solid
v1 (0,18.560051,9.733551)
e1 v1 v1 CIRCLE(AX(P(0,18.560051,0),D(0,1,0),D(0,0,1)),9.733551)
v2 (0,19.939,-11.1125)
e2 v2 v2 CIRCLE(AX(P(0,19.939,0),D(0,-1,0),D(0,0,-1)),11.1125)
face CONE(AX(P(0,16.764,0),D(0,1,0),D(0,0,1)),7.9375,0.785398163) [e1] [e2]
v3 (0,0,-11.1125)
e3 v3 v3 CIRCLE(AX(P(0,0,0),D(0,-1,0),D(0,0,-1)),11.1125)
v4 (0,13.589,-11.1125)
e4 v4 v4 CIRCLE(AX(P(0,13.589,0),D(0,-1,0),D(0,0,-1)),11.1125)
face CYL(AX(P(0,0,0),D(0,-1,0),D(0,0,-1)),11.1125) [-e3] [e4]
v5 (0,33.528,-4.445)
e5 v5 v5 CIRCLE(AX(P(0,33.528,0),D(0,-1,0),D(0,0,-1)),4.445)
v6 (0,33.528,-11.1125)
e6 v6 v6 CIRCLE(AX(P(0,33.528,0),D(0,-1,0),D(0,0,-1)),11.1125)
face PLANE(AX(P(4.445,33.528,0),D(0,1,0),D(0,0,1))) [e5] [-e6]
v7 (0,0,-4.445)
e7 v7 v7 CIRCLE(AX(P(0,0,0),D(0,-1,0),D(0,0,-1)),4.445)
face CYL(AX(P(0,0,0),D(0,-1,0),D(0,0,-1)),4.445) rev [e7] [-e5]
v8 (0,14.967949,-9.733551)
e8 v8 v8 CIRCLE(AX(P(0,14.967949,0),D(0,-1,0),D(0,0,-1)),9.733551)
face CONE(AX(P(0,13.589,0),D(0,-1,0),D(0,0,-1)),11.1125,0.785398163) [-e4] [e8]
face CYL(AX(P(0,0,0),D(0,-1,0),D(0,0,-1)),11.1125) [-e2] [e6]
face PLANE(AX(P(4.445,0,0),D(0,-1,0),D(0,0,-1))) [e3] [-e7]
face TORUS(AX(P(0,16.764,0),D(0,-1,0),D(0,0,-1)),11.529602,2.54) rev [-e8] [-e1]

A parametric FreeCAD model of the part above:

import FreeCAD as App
import Part
import Sketcher
from FreeCAD import Vector
Q = App.Units.Quantity


def edges_at(feature, points):
    """Names of the edges that pass closest to the given points."""
    edges = feature.Shape.Edges
    near = lambda p: min(range(len(edges)), key=lambda i: edges[i].distToShape(Part.Vertex(*p))[0])
    return sorted({f"Edge{near(p) + 1}" for p in points})


def add_polygon(sketch, points):
    """Adds a closed chain of lines whose ends are joined by coincident constraints."""
    first, n = sketch.GeometryCount, len(points)
    for a, b in zip(points, points[1:] + points[:1]):
        sketch.addGeometry(Part.LineSegment(App.Vector(*a, 0), App.Vector(*b, 0)), False)
    for i in range(n):
        sketch.addConstraint(Sketcher.Constraint("Coincident", first + i, 2, first + (i + 1) % n, 1))

doc = App.newDocument("Part")
body = doc.addObject("PartDesign::Body", "Body")

# Sketch on XY plane
sketch1 = body.newObject("Sketcher::SketchObject", "Sketch")
sketch1.AttachmentSupport = (doc.getObject("XY_Plane"), [""])
sketch1.MapMode = "FlatFace"
add_polygon(sketch1, [(4.4, 0), (11.1, 0), (11.1, 13.6), (7.9, 16.8), (11.1, 19.9), (11.1, 33.5), (4.4, 33.5)])  # lines 0-6
sketch1.addConstraint(Sketcher.Constraint("Horizontal", 0))
sketch1.addConstraint(Sketcher.Constraint("Vertical", 1))
sketch1.addConstraint(Sketcher.Constraint("Vertical", 4))
sketch1.addConstraint(Sketcher.Constraint("Horizontal", 5))
sketch1.addConstraint(Sketcher.Constraint("Vertical", 6))
sketch1.addConstraint(Sketcher.Constraint("PointOnObject", 0, 2, -1))
sketch1.addConstraint(Sketcher.Constraint("Perpendicular", 2, 3))
sketch1.addConstraint(Sketcher.Constraint("Vertical", 1, 2, 3, 2))
sketch1.addConstraint(Sketcher.Constraint("Equal", 1, 4))
sketch1.addConstraint(Sketcher.Constraint("Equal", 2, 3))
sketch1.addConstraint(Sketcher.Constraint("DistanceY", 6, 2, 6, 1, Q("1.32 in")))
sketch1.addConstraint(Sketcher.Constraint("DistanceY", 1, 1, 1, 2, Q("0.535 in")))
sketch1.addConstraint(Sketcher.Constraint("DistanceX", 0, 1, 0, 2, Q("0.2625 in")))
sketch1.addConstraint(Sketcher.Constraint("DistanceX", -1, 1, 0, 2, Q("0.4375 in")))
revolution = body.newObject("PartDesign::Revolution", "Revolution")
revolution.Profile = sketch1
revolution.ReferenceAxis = (sketch1, ["V_Axis"])
revolution.Angle = 360
doc.recompute()

fillet = body.newObject("PartDesign::Fillet", "Fillet")
fillet.Base = (revolution, edges_at(revolution, [(-7.938, 16.764, 0)]))
fillet.Radius = Q("0.1 in")

doc.recompute()
